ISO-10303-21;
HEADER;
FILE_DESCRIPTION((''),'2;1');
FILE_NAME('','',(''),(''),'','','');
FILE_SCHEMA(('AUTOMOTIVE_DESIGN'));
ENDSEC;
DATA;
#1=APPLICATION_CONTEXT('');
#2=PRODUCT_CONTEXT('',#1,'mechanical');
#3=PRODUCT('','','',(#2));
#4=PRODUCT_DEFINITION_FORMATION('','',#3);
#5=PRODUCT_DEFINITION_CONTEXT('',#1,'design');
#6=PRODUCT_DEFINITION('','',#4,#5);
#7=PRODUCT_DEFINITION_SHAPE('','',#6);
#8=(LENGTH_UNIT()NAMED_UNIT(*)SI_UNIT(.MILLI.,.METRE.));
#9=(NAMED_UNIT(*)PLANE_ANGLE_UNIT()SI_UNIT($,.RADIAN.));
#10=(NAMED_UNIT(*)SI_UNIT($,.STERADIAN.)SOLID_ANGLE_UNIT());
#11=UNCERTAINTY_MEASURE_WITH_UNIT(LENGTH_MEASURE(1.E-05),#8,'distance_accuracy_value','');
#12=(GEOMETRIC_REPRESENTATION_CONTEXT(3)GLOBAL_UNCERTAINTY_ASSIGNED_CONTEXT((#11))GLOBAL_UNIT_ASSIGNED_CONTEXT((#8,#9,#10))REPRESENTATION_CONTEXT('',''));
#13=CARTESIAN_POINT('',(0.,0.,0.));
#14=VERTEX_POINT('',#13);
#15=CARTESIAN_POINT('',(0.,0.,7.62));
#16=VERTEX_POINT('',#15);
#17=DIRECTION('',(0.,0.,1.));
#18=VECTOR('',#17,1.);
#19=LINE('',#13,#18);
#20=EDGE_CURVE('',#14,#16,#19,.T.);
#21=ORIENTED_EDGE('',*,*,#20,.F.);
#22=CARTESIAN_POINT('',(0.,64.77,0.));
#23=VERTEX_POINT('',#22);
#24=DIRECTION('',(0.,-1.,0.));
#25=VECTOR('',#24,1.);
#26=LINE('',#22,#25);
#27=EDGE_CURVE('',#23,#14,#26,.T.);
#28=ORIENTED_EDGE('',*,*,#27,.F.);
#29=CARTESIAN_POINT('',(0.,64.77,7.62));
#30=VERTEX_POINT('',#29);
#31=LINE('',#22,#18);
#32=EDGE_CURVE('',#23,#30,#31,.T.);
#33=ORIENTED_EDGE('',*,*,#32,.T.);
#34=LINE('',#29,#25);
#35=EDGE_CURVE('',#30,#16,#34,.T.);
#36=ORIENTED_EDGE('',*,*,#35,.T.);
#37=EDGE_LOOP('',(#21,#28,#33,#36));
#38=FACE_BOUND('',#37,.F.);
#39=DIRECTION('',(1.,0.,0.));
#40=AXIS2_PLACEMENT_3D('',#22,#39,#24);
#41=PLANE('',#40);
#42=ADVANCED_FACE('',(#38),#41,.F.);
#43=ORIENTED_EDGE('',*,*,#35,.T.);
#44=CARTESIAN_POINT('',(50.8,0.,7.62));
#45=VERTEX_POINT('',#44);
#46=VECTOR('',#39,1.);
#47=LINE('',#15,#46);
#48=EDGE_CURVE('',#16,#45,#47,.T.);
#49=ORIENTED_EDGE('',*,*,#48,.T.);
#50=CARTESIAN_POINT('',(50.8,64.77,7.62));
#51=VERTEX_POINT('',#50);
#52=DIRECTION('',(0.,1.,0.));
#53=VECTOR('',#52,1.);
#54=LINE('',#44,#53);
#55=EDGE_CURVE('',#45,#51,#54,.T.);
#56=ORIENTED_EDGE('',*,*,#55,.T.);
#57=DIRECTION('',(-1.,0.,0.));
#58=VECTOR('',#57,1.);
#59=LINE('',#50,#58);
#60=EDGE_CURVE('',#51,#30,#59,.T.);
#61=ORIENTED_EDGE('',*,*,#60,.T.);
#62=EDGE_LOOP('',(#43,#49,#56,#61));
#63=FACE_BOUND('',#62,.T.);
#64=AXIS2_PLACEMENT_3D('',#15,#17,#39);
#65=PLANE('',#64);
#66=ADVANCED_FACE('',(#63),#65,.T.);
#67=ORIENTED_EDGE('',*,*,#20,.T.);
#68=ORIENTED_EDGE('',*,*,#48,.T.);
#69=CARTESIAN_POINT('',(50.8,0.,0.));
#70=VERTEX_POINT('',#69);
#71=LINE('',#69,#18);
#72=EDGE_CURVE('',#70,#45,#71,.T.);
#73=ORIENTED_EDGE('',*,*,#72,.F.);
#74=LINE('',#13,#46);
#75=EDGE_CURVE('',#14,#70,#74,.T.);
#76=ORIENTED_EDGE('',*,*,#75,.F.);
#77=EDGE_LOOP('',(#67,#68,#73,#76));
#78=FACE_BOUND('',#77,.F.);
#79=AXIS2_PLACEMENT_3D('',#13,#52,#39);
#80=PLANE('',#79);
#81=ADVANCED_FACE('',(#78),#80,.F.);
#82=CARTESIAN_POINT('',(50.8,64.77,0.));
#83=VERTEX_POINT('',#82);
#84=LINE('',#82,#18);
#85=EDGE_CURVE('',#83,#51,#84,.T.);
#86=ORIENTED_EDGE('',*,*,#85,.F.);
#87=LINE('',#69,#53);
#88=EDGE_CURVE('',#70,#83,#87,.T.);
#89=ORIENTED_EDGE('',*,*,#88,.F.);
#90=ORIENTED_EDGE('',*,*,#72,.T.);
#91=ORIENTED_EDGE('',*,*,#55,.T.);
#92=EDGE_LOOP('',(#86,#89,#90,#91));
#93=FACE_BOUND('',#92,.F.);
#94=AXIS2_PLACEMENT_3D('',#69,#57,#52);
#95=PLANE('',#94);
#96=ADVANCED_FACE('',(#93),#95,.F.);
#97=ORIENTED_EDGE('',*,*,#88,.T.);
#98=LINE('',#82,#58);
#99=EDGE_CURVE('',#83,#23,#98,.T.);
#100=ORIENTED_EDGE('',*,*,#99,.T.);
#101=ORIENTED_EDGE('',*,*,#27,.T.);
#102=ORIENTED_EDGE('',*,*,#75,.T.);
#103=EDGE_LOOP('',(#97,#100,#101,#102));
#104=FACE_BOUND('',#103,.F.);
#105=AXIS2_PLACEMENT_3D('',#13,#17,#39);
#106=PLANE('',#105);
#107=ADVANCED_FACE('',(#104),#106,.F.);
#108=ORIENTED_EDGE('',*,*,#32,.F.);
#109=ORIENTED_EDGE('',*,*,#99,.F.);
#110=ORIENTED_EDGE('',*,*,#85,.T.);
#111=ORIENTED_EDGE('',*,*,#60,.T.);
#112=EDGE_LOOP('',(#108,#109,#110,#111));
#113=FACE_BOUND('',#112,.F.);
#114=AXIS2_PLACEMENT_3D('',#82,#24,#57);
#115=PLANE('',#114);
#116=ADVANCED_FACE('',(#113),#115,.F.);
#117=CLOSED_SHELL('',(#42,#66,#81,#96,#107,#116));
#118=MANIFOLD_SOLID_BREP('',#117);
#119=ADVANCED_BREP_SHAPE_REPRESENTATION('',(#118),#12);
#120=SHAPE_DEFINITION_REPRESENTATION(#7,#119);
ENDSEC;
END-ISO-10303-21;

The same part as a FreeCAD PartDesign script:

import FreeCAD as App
import Part
import Sketcher

V = App.Vector
Q = App.Units.Quantity

doc = App.newDocument("Part")
body = doc.addObject("PartDesign::Body", "Body")

sketch1 = body.newObject("Sketcher::SketchObject", "Sketch")
sketch1.AttachmentSupport = (doc.getObject("XY_Plane"), [""])
sketch1.MapMode = "FlatFace"
sketch1.addGeometry([
    Part.LineSegment(V(0, 65, 0), V(0, 0, 0)),
    Part.LineSegment(V(0, 0, 0), V(51, 0, 0)),
    Part.LineSegment(V(51, 0, 0), V(51, 65, 0)),
    Part.LineSegment(V(51, 65, 0), V(0, 65, 0)),
], False)
sketch1.addConstraint([
    Sketcher.Constraint("Coincident", 0, 2, 1, 1),
    Sketcher.Constraint("Coincident", 1, 2, 2, 1),
    Sketcher.Constraint("Coincident", 2, 2, 3, 1),
    Sketcher.Constraint("Coincident", 3, 2, 0, 1),
    Sketcher.Constraint("Vertical", 0),
    Sketcher.Constraint("Horizontal", 1),
    Sketcher.Constraint("Vertical", 2),
    Sketcher.Constraint("Horizontal", 3),
    Sketcher.Constraint("Coincident", 0, 2, -1, 1),
    Sketcher.Constraint("DistanceX", 1, 1, 1, 2, Q("2 in")),
    Sketcher.Constraint("DistanceY", 0, 2, 0, 1, Q("2.55 in")),
])
pad1 = body.newObject("PartDesign::Pad", "Pad")
pad1.Profile = sketch1
pad1.Length = Q("0.3 in")

doc.recompute()
